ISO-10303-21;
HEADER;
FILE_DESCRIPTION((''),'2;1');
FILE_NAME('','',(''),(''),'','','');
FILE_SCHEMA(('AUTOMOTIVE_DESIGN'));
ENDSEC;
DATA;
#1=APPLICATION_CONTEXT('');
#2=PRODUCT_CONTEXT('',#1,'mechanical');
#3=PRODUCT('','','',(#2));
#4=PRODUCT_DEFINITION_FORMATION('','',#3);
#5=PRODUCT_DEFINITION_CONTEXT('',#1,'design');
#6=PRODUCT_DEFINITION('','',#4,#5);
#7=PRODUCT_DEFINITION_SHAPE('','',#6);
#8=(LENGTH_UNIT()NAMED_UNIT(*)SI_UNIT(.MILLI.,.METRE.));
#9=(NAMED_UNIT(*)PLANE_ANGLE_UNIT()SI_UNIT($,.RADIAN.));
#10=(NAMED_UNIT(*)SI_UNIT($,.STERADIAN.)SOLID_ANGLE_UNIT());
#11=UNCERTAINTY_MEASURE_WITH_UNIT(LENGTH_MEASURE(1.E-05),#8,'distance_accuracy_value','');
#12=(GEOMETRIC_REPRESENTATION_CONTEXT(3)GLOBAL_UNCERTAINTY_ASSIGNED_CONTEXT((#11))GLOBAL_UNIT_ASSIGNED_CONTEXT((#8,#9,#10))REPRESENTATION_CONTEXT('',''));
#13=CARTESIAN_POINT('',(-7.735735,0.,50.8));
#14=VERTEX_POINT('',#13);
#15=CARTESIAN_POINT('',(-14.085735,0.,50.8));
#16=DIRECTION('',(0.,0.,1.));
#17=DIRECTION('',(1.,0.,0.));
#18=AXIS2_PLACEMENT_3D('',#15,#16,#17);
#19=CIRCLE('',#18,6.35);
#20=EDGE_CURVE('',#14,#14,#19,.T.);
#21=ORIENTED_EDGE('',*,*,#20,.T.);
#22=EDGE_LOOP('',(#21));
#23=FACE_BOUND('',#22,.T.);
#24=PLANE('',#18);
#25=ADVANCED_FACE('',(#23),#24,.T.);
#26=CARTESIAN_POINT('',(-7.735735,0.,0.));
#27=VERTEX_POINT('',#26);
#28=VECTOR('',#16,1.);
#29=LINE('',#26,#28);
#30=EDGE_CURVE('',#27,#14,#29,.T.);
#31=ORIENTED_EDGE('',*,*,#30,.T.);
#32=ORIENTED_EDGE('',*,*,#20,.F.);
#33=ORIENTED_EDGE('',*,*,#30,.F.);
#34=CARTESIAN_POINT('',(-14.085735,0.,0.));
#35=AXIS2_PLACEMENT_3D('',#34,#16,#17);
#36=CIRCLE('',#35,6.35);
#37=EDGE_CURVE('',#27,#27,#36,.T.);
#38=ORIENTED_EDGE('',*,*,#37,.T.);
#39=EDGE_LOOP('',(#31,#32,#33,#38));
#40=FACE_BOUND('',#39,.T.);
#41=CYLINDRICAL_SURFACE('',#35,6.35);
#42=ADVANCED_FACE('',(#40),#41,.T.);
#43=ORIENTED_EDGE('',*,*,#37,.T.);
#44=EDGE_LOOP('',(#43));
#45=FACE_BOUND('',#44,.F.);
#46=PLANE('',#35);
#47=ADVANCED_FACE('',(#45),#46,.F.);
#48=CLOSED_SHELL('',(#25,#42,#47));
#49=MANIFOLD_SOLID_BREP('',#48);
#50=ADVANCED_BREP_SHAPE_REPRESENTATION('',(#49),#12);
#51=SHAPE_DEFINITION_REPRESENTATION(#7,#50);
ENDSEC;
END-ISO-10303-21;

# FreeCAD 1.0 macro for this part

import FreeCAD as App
import Part
import Sketcher
from FreeCAD import Vector
Q = App.Units.Quantity

doc = App.newDocument("Part")
params = doc.addObject("Spreadsheet::Sheet", "Params")
for row, (alias, value) in enumerate([
    ("sketch1_diameter", "0.5 in"),
    ("sketch2_height", "2 in"),
], start=1):
    params.set(f"A{row}", alias)
    params.set(f"B{row}", "=" + value)
    params.setAlias(f"B{row}", alias)

body = doc.addObject("PartDesign::Body", "Body")

# Sketch on XY plane
sketch1 = body.newObject("Sketcher::SketchObject", "Sketch")
sketch1.AttachmentSupport = (doc.getObject("XY_Plane"), [""])
sketch1.MapMode = "FlatFace"
sketch1.addGeometry(Part.Circle(Vector(-14.085735, 0, 0), Vector(0, 0, 1), 6.35), False)
sketch1.addConstraint([
    Sketcher.Constraint("PointOnObject", 0, 3, -1),
    Sketcher.Constraint("Diameter", 0, Q("0.5 in")),
    Sketcher.Constraint("DistanceX", 0, 3, -1, 1, Q("14.085735 mm")),
])
sketch1.setExpression("Constraints[1]", "Params.sketch1_diameter")

# Sketch on XZ plane
sketch2 = body.newObject("Sketcher::SketchObject", "Sketch001")
sketch2.AttachmentSupport = (doc.getObject("XZ_Plane"), [""])
sketch2.MapMode = "FlatFace"
sketch2.addGeometry(Part.LineSegment(Vector(-14.085735, 0, 0), Vector(-14.085735, 50.8, 0)), False)
sketch2.addConstraint([
    Sketcher.Constraint("Vertical", 0),
    Sketcher.Constraint("PointOnObject", 0, 1, -1),
    Sketcher.Constraint("DistanceY", 0, 1, 0, 2, Q("2 in")),
    Sketcher.Constraint("DistanceX", 0, 1, -1, 1, Q("14.085735 mm")),
])
sketch2.setExpression("Constraints[2]", "Params.sketch2_height")
doc.recompute()

additivepipe = body.newObject("PartDesign::AdditivePipe", "AdditivePipe")
additivepipe.Profile = sketch1
additivepipe.Spine = (sketch2, ["Edge1"])

doc.recompute()
